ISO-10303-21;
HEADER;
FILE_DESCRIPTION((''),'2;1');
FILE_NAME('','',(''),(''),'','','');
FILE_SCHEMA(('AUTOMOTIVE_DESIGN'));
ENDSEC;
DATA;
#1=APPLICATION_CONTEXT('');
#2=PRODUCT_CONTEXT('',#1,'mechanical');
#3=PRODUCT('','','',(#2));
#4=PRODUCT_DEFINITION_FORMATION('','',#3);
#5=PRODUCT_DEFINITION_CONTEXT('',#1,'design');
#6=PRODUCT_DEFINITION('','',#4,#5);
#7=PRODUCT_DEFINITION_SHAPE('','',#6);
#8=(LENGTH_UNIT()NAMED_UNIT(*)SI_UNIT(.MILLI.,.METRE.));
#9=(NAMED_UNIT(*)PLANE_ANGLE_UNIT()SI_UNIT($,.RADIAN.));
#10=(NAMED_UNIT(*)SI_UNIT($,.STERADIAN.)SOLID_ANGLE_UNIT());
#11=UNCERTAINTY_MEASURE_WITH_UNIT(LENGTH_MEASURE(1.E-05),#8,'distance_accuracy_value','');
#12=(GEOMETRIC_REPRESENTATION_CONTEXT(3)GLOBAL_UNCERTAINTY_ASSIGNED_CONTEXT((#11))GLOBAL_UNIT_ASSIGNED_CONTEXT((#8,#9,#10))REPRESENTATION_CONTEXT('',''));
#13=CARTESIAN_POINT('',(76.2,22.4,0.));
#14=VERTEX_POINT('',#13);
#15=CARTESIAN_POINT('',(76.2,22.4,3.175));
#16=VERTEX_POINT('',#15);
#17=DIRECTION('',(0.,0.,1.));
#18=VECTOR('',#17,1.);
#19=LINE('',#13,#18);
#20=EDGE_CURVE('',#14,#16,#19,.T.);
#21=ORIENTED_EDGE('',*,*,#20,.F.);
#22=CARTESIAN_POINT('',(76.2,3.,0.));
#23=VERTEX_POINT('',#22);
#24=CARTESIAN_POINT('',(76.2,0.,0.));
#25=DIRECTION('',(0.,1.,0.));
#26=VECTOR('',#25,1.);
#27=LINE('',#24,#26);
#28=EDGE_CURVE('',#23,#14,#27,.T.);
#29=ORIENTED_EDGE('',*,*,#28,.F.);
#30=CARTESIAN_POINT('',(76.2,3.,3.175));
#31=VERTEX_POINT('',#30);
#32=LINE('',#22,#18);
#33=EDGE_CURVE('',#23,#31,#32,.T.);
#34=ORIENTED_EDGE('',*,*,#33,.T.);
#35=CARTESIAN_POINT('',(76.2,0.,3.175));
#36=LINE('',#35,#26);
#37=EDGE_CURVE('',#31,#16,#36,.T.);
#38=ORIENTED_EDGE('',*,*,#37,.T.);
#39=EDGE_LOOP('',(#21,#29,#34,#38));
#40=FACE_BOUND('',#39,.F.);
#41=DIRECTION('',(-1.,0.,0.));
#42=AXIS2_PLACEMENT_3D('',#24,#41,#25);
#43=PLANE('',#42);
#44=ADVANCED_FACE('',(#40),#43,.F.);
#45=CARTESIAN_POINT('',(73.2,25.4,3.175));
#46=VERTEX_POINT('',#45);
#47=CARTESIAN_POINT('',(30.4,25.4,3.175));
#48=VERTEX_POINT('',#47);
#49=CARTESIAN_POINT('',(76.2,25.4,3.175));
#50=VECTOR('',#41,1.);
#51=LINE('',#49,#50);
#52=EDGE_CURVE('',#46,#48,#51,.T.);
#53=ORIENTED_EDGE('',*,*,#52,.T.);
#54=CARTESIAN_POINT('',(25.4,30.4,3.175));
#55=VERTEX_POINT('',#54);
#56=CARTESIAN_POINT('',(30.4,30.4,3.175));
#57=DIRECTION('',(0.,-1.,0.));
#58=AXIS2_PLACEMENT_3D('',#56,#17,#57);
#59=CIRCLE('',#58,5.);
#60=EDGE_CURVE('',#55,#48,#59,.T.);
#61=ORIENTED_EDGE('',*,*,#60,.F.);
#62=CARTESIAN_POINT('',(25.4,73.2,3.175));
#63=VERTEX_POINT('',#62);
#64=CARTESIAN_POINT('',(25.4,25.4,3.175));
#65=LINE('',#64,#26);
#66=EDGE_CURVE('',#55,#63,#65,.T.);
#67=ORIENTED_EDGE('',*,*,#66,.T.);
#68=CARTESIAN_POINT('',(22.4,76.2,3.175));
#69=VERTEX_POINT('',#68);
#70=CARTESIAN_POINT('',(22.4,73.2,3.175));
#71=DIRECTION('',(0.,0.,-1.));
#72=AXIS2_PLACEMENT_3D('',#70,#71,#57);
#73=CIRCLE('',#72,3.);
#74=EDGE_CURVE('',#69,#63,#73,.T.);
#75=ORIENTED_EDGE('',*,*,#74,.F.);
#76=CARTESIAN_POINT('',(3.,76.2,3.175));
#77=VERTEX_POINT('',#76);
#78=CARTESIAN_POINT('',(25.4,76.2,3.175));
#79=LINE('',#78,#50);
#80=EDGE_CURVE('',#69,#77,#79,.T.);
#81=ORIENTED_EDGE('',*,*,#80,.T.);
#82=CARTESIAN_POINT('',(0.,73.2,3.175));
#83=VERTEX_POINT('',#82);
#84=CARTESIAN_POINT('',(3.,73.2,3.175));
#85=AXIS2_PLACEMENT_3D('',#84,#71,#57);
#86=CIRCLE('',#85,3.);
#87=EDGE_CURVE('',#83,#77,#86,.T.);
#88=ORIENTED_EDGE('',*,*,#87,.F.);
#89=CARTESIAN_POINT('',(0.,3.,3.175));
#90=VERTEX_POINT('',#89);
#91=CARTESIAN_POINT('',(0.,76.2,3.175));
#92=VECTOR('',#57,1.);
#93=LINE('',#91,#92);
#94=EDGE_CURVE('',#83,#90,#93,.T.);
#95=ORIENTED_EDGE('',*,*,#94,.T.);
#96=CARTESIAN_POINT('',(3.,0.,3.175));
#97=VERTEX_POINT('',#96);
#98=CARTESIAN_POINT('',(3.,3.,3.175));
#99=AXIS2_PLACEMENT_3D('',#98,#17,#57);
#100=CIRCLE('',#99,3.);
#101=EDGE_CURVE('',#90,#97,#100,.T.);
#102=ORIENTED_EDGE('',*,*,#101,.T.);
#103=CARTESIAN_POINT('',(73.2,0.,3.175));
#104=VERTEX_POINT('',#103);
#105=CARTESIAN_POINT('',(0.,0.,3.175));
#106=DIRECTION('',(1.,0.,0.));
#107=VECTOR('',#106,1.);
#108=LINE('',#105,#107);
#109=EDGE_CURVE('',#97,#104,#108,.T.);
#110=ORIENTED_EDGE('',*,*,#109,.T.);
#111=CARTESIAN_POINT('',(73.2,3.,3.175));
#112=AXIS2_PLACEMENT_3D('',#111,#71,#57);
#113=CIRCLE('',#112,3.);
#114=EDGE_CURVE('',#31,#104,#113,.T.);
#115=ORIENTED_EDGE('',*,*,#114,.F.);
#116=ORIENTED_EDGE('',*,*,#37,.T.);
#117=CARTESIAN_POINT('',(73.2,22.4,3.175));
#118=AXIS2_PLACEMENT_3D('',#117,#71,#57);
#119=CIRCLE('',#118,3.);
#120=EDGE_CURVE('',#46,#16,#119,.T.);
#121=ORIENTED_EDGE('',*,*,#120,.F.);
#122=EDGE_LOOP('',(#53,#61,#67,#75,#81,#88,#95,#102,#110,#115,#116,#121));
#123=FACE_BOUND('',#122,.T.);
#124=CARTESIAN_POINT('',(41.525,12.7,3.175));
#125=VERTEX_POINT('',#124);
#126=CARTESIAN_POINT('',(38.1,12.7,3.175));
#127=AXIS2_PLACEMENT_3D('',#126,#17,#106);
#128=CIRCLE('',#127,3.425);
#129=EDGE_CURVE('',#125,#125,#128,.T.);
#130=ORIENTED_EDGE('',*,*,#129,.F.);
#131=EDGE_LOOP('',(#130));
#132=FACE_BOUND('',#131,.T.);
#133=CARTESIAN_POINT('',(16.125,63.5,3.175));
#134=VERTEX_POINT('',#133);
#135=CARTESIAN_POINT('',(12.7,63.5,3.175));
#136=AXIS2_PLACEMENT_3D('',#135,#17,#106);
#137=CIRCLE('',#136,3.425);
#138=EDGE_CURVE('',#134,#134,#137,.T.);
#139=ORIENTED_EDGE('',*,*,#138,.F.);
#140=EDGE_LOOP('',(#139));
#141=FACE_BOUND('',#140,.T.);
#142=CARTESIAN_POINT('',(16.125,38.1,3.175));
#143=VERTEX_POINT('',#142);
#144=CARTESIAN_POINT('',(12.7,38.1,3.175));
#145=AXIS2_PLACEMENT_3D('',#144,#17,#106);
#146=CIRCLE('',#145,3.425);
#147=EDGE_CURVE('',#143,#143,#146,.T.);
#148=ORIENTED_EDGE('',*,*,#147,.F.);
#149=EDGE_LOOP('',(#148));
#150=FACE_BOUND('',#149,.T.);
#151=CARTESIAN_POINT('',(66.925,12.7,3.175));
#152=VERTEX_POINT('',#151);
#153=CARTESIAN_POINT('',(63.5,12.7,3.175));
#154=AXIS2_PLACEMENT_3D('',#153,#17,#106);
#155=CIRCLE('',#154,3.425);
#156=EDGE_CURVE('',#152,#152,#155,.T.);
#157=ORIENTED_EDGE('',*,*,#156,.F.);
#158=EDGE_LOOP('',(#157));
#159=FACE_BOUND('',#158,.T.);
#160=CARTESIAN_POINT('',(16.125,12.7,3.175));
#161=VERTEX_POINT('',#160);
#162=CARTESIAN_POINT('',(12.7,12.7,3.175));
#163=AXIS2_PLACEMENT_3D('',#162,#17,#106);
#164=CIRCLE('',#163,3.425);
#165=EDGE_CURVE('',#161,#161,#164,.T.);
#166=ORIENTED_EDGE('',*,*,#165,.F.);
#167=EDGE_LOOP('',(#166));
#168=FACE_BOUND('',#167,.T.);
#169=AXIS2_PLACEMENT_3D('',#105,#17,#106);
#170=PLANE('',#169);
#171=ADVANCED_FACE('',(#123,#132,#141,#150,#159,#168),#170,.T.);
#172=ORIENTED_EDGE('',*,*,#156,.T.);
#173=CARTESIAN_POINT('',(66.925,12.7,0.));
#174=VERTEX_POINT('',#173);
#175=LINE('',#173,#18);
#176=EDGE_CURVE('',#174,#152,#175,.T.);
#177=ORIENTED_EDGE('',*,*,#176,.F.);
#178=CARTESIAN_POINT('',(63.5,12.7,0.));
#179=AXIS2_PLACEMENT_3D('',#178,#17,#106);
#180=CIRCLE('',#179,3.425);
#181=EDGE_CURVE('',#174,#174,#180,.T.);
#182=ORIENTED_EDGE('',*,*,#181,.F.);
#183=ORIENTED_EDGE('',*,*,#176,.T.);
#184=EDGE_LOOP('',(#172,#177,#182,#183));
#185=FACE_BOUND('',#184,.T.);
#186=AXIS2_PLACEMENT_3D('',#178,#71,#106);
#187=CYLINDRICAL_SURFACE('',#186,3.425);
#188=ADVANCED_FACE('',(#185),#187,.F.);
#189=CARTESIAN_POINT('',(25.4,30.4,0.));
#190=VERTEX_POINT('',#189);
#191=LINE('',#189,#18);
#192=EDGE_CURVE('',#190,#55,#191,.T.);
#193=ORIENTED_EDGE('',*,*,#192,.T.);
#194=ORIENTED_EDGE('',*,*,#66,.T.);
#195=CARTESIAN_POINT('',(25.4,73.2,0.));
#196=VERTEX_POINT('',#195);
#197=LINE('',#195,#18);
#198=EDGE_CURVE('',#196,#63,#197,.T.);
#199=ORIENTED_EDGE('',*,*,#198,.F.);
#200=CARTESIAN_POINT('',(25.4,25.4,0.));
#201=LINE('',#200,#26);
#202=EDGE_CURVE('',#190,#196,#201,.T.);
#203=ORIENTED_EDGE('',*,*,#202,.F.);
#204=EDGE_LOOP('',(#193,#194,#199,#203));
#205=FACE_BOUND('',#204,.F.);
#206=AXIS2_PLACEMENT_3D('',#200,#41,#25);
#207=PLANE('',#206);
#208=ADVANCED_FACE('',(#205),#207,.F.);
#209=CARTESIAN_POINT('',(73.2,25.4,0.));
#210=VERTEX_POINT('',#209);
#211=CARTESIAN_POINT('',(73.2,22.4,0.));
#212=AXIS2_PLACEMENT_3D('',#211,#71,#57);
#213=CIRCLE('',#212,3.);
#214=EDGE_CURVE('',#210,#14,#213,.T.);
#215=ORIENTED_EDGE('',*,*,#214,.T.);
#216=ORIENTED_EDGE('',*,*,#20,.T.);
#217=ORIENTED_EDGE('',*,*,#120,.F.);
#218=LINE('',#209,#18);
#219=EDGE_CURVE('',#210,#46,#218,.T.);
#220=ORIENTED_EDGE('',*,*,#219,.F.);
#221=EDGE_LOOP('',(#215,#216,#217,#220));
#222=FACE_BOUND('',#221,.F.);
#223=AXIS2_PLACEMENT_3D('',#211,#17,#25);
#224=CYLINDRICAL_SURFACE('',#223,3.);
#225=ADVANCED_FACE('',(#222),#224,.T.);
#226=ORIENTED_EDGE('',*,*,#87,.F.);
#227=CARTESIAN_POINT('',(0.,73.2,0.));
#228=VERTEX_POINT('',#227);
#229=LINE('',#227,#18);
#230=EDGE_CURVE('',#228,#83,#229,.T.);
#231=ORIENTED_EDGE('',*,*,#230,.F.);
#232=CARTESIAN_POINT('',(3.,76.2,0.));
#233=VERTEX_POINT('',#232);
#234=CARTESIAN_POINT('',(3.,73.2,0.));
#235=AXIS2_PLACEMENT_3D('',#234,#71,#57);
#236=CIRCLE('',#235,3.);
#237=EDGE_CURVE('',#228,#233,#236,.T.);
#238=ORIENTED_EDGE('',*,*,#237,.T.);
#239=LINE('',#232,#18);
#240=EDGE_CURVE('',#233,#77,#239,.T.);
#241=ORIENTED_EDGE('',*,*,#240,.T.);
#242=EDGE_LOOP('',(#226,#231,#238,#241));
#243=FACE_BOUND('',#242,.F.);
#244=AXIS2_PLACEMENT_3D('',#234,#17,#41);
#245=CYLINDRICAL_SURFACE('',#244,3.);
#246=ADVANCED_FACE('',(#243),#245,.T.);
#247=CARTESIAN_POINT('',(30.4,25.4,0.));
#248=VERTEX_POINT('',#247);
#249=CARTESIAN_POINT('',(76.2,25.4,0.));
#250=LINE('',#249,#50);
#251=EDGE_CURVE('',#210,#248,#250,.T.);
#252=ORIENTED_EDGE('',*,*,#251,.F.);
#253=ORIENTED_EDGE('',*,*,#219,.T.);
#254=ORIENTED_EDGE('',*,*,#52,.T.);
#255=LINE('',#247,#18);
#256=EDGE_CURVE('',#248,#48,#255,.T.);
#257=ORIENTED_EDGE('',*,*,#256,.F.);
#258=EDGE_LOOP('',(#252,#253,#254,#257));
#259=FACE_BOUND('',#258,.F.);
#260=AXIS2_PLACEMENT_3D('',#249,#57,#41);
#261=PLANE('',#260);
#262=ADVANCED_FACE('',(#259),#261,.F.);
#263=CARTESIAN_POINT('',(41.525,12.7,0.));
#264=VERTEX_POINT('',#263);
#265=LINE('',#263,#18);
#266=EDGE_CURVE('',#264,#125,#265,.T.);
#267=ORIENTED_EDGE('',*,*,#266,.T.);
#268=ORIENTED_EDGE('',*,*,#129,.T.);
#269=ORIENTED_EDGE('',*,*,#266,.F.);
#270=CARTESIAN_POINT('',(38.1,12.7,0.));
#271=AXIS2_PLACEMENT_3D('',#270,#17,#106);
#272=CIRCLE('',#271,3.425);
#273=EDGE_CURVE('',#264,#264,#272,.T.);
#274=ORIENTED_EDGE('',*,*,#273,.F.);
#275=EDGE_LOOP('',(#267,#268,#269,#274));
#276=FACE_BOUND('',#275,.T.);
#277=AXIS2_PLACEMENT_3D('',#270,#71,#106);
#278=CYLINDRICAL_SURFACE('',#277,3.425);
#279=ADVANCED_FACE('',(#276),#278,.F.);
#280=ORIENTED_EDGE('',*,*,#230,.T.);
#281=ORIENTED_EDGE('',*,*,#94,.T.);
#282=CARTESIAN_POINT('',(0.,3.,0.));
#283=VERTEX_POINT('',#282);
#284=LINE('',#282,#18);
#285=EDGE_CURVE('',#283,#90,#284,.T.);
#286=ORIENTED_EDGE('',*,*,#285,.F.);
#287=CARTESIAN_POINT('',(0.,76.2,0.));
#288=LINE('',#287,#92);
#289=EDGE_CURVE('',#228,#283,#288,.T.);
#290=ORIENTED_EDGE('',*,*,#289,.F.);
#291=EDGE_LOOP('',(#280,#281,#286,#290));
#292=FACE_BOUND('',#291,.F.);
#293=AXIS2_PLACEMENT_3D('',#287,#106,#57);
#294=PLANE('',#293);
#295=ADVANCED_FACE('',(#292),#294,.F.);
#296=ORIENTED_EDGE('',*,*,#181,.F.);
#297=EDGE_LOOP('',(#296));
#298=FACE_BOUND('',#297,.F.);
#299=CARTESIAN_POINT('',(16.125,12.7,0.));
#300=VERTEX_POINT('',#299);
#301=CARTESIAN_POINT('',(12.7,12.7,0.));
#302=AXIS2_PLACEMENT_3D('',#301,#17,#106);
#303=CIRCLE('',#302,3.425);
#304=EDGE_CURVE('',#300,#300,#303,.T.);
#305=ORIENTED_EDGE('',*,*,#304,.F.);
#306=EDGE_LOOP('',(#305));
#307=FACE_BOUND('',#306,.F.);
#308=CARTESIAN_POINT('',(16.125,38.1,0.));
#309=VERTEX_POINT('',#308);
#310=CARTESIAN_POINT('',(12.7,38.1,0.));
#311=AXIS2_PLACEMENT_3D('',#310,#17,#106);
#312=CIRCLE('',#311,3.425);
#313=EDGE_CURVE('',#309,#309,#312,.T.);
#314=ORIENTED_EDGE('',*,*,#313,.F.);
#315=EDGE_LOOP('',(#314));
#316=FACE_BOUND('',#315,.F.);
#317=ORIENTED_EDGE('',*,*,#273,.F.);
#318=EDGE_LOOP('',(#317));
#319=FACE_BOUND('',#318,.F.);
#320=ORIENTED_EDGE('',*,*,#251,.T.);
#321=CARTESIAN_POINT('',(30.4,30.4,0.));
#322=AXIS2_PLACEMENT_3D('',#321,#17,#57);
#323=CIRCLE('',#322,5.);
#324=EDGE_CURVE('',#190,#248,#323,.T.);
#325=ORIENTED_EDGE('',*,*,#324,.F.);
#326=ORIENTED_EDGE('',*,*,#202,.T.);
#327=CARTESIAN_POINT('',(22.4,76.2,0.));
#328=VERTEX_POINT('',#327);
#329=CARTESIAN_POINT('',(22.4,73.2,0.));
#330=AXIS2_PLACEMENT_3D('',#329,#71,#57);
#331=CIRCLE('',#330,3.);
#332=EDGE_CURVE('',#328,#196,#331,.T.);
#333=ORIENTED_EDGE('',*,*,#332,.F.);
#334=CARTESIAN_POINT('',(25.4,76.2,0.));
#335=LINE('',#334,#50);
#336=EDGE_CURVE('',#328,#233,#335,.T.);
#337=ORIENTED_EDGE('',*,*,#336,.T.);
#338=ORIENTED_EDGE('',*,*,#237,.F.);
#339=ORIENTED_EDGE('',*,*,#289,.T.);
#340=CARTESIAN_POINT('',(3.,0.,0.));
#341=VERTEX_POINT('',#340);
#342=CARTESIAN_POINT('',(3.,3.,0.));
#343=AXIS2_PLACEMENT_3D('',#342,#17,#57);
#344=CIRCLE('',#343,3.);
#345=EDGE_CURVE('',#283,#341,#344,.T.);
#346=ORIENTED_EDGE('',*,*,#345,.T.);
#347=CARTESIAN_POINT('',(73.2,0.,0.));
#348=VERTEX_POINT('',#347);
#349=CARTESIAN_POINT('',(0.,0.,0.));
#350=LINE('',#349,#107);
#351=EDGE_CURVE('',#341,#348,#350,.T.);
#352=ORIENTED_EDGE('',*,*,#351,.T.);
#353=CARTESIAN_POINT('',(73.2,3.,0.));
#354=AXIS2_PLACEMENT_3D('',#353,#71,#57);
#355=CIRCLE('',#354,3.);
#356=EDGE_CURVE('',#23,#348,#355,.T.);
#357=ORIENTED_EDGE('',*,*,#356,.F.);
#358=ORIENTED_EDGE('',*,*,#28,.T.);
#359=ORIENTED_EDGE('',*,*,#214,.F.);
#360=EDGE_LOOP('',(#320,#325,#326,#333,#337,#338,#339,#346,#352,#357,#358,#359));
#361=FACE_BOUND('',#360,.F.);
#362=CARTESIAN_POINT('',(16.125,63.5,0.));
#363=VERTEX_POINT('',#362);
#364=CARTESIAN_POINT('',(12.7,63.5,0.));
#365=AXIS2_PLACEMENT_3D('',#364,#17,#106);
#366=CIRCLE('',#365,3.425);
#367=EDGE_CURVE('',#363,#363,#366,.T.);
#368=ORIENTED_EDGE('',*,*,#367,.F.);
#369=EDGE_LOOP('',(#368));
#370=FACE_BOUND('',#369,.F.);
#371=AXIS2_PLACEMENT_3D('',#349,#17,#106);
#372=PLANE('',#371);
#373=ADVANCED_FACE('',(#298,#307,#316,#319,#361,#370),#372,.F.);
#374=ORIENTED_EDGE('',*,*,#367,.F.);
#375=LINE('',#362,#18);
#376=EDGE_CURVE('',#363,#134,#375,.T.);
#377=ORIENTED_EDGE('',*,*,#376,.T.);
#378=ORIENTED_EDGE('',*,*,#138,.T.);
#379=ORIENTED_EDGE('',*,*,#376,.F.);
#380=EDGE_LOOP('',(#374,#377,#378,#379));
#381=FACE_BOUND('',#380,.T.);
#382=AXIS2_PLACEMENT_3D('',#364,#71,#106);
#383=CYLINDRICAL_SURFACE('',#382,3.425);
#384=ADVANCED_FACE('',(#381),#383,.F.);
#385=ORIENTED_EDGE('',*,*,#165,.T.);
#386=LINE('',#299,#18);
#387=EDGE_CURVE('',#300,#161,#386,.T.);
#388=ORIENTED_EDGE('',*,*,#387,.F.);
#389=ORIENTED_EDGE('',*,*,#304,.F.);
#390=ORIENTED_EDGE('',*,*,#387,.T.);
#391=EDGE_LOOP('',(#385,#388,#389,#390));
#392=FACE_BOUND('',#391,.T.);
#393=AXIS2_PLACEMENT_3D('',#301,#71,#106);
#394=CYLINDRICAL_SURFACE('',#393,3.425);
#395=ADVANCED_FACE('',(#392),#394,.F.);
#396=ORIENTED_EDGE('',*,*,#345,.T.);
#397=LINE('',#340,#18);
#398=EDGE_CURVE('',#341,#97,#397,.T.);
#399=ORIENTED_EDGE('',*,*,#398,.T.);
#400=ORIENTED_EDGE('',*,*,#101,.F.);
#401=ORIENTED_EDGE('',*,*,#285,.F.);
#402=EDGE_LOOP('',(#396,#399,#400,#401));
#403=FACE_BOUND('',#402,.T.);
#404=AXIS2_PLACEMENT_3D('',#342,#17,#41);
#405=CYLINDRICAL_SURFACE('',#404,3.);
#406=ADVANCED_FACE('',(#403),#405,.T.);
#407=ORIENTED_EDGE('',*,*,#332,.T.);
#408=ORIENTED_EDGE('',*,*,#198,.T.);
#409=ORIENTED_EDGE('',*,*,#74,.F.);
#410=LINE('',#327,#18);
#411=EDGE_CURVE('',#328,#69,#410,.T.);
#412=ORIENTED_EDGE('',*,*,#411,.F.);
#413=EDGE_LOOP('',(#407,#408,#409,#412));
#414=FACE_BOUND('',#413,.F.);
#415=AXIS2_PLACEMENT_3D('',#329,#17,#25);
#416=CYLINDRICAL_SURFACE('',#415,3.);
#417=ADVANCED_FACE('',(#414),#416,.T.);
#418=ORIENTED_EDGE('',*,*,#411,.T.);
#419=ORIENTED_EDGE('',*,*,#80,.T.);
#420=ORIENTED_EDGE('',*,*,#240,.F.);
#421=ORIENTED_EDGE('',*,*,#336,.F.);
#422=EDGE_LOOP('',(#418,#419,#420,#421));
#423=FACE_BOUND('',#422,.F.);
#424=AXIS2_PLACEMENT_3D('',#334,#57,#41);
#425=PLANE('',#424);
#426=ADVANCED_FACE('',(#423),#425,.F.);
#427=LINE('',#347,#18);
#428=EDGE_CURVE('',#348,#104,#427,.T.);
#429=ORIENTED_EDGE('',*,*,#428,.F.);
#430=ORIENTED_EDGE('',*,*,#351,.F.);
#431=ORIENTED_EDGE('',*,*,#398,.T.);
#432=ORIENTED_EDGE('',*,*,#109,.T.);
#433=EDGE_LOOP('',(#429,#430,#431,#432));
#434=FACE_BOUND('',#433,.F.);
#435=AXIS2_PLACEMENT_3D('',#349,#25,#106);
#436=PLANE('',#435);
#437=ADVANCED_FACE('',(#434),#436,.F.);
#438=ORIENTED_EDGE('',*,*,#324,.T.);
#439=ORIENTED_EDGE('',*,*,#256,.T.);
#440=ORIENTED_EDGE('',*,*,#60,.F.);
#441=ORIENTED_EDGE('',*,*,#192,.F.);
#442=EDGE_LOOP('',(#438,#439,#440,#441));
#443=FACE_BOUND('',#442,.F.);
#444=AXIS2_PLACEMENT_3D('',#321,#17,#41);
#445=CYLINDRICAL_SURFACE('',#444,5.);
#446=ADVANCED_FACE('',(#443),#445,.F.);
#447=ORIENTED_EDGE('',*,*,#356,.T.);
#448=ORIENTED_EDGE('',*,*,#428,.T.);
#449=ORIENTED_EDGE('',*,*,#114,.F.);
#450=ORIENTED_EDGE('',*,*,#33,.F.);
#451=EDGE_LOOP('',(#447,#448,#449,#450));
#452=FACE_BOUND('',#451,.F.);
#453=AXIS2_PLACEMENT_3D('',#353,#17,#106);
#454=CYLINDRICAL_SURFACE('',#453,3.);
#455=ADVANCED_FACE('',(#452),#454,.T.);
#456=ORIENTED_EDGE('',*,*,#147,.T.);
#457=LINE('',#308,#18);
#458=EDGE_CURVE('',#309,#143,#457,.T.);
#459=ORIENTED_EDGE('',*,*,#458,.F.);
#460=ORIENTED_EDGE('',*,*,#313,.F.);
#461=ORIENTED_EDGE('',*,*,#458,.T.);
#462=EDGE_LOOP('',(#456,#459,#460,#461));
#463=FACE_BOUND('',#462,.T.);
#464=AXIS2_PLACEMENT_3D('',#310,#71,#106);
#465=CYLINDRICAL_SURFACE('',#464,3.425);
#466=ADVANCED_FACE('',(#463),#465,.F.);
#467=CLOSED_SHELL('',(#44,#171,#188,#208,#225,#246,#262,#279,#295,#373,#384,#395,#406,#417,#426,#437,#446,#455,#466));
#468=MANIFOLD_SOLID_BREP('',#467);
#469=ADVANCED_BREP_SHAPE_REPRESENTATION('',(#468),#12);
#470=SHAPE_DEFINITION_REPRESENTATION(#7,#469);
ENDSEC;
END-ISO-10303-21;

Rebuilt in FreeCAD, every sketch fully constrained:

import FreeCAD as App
import Part
import Sketcher
Q = App.Units.Quantity


def edges_at(feature, points):
    """Names of the edges that pass closest to the given points."""
    edges = feature.Shape.Edges
    near = lambda p: min(range(len(edges)), key=lambda i: edges[i].distToShape(Part.Vertex(*p))[0])
    return sorted({f"Edge{near(p) + 1}" for p in points})

doc = App.newDocument("Part")
body = doc.addObject("PartDesign::Body", "Body")

sketch1 = body.newObject("Sketcher::SketchObject", "Sketch")
sketch1.AttachmentSupport = (doc.getObject("XY_Plane"), [""])
sketch1.MapMode = "FlatFace"
sketch1.addGeometry([
    Part.LineSegment(App.Vector(0, 76.2, 0), App.Vector(0, 0, 0)),
    Part.LineSegment(App.Vector(0, 0, 0), App.Vector(76.2, 0, 0)),
    Part.LineSegment(App.Vector(76.2, 0, 0), App.Vector(76.2, 25.4, 0)),
    Part.LineSegment(App.Vector(76.2, 25.4, 0), App.Vector(25.4, 25.4, 0)),
    Part.LineSegment(App.Vector(25.4, 25.4, 0), App.Vector(25.4, 76.2, 0)),
    Part.LineSegment(App.Vector(25.4, 76.2, 0), App.Vector(0, 76.2, 0)),
    Part.Circle(App.Vector(12.7, 12.7, 0), App.Vector(0, 0, 1), 3.425),
    Part.Circle(App.Vector(38.1, 12.7, 0), App.Vector(0, 0, 1), 3.425),
    Part.Circle(App.Vector(63.5, 12.7, 0), App.Vector(0, 0, 1), 3.425),
    Part.Circle(App.Vector(12.7, 38.1, 0), App.Vector(0, 0, 1), 3.425),
    Part.Circle(App.Vector(12.7, 63.5, 0), App.Vector(0, 0, 1), 3.425),
], False)
sketch1.addConstraint([
    Sketcher.Constraint("Coincident", 0, 2, 1, 1),
    Sketcher.Constraint("Coincident", 1, 2, 2, 1),
    Sketcher.Constraint("Coincident", 2, 2, 3, 1),
    Sketcher.Constraint("Coincident", 3, 2, 4, 1),
    Sketcher.Constraint("Coincident", 4, 2, 5, 1),
    Sketcher.Constraint("Coincident", 5, 2, 0, 1),
    Sketcher.Constraint("Vertical", 0),
    Sketcher.Constraint("Horizontal", 1),
    Sketcher.Constraint("Vertical", 2),
    Sketcher.Constraint("Horizontal", 3),
    Sketcher.Constraint("Vertical", 4),
    Sketcher.Constraint("Horizontal", 5),
    Sketcher.Constraint("Coincident", 0, 2, -1, 1),
    Sketcher.Constraint("Equal", 6, 7),
    Sketcher.Constraint("Equal", 7, 8),
    Sketcher.Constraint("Equal", 8, 9),
    Sketcher.Constraint("Equal", 9, 10),
    Sketcher.Constraint("Horizontal", 6, 3, 7, 3),
    Sketcher.Constraint("Horizontal", 7, 3, 8, 3),
    Sketcher.Constraint("Vertical", 6, 3, 9, 3),
    Sketcher.Constraint("Vertical", 9, 3, 10, 3),
    Sketcher.Constraint("Equal", 1, 0),
    Sketcher.Constraint("Equal", 5, 2),
    Sketcher.Constraint("DistanceX", 5, 2, 5, 1, Q("1 in")),
    Sketcher.Constraint("DistanceX", 6, 3, 7, 3, Q("1 in")),
    Sketcher.Constraint("DistanceX", 7, 3, 8, 3, Q("1 in")),
    Sketcher.Constraint("DistanceY", 6, 3, 9, 3, Q("1 in")),
    Sketcher.Constraint("DistanceY", 9, 3, 10, 3, Q("1 in")),
    Sketcher.Constraint("DistanceX", -1, 1, 6, 3, Q("0.5 in")),
    Sketcher.Constraint("DistanceY", -1, 1, 6, 3, Q("0.5 in")),
    Sketcher.Constraint("DistanceX", 8, 3, 1, 2, Q("0.5 in")),
    Sketcher.Constraint("Diameter", 6, Q("6.85 mm")),
])
pad1 = body.newObject("PartDesign::Pad", "Pad")
pad1.Profile = sketch1
pad1.Length = Q("0.125 in")
doc.recompute()

fillet = body.newObject("PartDesign::Fillet", "Fillet")
fillet.Base = (pad1, edges_at(pad1, [
    (0, 0, 1.587),
    (76.2, 0, 1.587),
    (76.2, 25.4, 1.587),
    (25.4, 76.2, 1.587),
    (0, 76.2, 1.587),
]))
fillet.Radius = Q("0.1181102 in")
doc.recompute()

fillet2 = body.newObject("PartDesign::Fillet", "Fillet001")
fillet2.Base = (fillet, edges_at(fillet, [(25.4, 25.4, 1.587)]))
fillet2.Radius = 5

doc.recompute()
